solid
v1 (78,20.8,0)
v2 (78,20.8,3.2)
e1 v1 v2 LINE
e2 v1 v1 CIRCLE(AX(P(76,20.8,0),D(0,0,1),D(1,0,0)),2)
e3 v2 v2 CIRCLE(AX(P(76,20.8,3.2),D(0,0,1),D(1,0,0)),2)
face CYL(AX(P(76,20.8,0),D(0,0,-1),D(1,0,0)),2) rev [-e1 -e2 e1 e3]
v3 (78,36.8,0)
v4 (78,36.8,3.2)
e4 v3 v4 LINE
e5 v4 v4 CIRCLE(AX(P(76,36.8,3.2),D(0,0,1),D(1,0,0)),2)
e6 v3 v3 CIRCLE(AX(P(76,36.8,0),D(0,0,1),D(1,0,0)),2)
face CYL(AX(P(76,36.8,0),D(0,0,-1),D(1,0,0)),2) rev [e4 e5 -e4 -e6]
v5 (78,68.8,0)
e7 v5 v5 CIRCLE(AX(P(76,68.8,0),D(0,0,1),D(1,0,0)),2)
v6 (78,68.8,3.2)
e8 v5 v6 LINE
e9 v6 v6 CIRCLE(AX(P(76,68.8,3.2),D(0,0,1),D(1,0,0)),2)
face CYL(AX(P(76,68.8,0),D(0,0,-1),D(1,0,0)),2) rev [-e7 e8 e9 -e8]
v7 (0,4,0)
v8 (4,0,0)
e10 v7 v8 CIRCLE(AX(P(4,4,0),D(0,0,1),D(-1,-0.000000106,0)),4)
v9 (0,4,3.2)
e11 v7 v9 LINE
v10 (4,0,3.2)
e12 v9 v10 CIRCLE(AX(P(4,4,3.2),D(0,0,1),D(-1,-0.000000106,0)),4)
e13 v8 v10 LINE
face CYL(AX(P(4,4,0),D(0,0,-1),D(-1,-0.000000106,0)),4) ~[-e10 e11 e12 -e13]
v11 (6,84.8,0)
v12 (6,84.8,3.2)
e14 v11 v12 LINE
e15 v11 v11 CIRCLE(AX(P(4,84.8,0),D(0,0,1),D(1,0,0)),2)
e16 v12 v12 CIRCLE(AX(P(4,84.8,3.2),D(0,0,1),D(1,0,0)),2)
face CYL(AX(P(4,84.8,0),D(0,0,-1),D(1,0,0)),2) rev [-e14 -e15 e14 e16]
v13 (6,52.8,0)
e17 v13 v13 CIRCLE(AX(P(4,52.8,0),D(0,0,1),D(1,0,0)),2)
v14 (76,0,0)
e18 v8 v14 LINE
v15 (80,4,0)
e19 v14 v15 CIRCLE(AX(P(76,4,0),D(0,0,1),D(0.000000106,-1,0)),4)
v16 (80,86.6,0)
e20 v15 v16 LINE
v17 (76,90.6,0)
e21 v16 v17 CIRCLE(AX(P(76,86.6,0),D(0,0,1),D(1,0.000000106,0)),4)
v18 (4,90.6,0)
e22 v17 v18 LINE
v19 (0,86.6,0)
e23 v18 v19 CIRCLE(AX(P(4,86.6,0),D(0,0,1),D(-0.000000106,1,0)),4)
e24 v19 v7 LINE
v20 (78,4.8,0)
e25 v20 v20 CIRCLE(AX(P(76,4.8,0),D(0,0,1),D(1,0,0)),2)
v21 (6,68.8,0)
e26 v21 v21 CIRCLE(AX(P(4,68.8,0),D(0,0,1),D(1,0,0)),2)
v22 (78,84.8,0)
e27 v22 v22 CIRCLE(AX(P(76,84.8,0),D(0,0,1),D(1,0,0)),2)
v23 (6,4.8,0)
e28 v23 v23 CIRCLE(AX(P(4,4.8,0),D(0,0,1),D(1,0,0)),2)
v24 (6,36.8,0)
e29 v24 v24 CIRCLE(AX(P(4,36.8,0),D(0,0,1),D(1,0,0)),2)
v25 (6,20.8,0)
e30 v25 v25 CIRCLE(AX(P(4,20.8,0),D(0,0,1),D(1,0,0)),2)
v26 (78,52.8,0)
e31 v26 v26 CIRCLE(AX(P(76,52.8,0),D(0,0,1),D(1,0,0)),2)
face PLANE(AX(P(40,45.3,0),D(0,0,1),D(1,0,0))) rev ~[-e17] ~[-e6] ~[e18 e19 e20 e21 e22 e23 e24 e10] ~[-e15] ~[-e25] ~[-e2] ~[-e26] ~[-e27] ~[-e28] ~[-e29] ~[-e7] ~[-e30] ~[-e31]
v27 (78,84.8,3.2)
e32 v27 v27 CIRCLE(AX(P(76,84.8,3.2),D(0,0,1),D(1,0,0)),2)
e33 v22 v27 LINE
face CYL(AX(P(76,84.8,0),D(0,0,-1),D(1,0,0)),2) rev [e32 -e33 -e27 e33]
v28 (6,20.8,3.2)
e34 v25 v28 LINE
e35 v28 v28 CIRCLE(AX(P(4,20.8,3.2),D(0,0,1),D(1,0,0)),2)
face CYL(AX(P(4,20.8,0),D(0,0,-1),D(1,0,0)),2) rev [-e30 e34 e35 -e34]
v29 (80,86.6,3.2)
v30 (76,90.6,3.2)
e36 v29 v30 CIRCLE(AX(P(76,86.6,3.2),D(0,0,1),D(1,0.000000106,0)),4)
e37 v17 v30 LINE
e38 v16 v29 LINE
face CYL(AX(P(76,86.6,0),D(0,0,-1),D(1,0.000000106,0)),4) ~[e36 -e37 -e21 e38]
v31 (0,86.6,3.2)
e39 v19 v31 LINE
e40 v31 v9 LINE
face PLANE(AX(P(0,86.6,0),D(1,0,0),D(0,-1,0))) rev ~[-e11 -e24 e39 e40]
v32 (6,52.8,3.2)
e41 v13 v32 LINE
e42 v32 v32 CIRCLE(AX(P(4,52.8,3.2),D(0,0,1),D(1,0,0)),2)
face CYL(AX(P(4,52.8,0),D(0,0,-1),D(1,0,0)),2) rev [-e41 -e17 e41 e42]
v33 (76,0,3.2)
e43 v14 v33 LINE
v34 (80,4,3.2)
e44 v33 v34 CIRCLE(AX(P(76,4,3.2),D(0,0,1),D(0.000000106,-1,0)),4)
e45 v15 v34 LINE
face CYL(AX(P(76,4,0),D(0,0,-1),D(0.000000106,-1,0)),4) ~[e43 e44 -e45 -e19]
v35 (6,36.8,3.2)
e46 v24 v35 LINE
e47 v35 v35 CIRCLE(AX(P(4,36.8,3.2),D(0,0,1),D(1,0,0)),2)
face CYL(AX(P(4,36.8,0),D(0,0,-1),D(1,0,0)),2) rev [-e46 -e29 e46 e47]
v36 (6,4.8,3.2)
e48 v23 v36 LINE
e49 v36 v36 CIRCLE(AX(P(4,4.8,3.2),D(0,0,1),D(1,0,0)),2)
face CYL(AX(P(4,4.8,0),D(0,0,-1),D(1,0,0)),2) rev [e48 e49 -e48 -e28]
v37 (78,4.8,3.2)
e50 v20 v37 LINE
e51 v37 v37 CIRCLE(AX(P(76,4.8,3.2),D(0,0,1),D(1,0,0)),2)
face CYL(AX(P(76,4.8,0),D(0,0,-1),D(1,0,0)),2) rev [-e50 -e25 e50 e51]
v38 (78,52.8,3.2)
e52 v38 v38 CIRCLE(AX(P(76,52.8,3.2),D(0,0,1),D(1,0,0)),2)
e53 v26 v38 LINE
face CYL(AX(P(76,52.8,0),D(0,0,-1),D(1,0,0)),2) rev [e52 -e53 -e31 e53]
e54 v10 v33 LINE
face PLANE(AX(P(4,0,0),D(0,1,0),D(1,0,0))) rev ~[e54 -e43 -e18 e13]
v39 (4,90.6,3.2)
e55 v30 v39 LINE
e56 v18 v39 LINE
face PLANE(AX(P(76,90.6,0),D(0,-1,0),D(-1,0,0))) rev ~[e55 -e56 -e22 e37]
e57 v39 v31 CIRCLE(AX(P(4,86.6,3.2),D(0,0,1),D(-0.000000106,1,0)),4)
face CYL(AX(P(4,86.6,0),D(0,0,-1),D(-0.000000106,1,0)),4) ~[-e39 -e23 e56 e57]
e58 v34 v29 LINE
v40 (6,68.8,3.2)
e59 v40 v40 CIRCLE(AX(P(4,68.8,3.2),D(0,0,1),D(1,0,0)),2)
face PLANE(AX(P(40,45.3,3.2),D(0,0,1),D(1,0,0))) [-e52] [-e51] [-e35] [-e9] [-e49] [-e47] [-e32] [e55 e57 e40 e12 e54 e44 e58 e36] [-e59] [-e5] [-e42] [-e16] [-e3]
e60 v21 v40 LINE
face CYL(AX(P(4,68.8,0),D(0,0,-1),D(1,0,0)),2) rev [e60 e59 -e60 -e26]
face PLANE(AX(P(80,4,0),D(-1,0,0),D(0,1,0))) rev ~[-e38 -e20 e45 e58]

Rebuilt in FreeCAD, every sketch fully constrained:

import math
import FreeCAD as App
import Part
import Sketcher
from FreeCAD import Vector

doc = App.newDocument("Part")
body = doc.addObject("PartDesign::Body", "Body")

sketch1 = body.newObject("Sketcher::SketchObject", "Sketch")
sketch1.AttachmentSupport = (doc.getObject("XY_Plane"), [""])
sketch1.MapMode = "FlatFace"
sketch1.addGeometry([
    Part.ArcOfCircle(Part.Circle(Vector(4, 4, 0), Vector(0, 0, 1), 4), math.radians(-180), math.radians(-90)),
    Part.LineSegment(Vector(4, 0, 0), Vector(76, 0, 0)),
    Part.ArcOfCircle(Part.Circle(Vector(76, 4, 0), Vector(0, 0, 1), 4), math.radians(-90), math.radians(0)),
    Part.LineSegment(Vector(80, 4, 0), Vector(80, 86.6, 0)),
    Part.ArcOfCircle(Part.Circle(Vector(76, 86.6, 0), Vector(0, 0, 1), 4), math.radians(0), math.radians(90)),
    Part.LineSegment(Vector(76, 90.6, 0), Vector(4, 90.6, 0)),
    Part.ArcOfCircle(Part.Circle(Vector(4, 86.6, 0), Vector(0, 0, 1), 4), math.radians(90), math.radians(180)),
    Part.LineSegment(Vector(0, 86.6, 0), Vector(0, 4, 0)),
    Part.Circle(Vector(4, 4.8, 0), Vector(0, 0, 1), 2),
    Part.Circle(Vector(4, 20.8, 0), Vector(0, 0, 1), 2),
    Part.Circle(Vector(4, 36.8, 0), Vector(0, 0, 1), 2),
    Part.Circle(Vector(76, 4.8, 0), Vector(0, 0, 1), 2),
    Part.Circle(Vector(76, 20.8, 0), Vector(0, 0, 1), 2),
    Part.Circle(Vector(76, 36.8, 0), Vector(0, 0, 1), 2),
    Part.Circle(Vector(4, 52.8, 0), Vector(0, 0, 1), 2),
    Part.Circle(Vector(4, 68.8, 0), Vector(0, 0, 1), 2),
    Part.Circle(Vector(4, 84.8, 0), Vector(0, 0, 1), 2),
    Part.Circle(Vector(76, 52.8, 0), Vector(0, 0, 1), 2),
    Part.Circle(Vector(76, 68.8, 0), Vector(0, 0, 1), 2),
    Part.Circle(Vector(76, 84.8, 0), Vector(0, 0, 1), 2),
], False)
sketch1.addConstraint([
    Sketcher.Constraint("Tangent", 0, 2, 1, 1),
    Sketcher.Constraint("Tangent", 1, 2, 2, 1),
    Sketcher.Constraint("Tangent", 2, 2, 3, 1),
    Sketcher.Constraint("Tangent", 3, 2, 4, 1),
    Sketcher.Constraint("Tangent", 4, 2, 5, 1),
    Sketcher.Constraint("Tangent", 5, 2, 6, 1),
    Sketcher.Constraint("Tangent", 6, 2, 7, 1),
    Sketcher.Constraint("Tangent", 7, 2, 0, 1),
    Sketcher.Constraint("Horizontal", 1),
    Sketcher.Constraint("Vertical", 3),
    Sketcher.Constraint("Horizontal", 5),
    Sketcher.Constraint("Vertical", 7),
    Sketcher.Constraint("Equal", 0, 2),
    Sketcher.Constraint("Equal", 2, 4),
    Sketcher.Constraint("Equal", 4, 6),
    Sketcher.Constraint("Equal", 8, 9),
    Sketcher.Constraint("Equal", 9, 10),
    Sketcher.Constraint("Equal", 10, 11),
    Sketcher.Constraint("Equal", 11, 12),
    Sketcher.Constraint("Equal", 12, 13),
    Sketcher.Constraint("Equal", 13, 14),
    Sketcher.Constraint("Equal", 14, 15),
    Sketcher.Constraint("Equal", 15, 16),
    Sketcher.Constraint("Equal", 16, 17),
    Sketcher.Constraint("Equal", 17, 18),
    Sketcher.Constraint("Equal", 18, 19),
    Sketcher.Constraint("PointOnObject", 0, 2, -1),
    Sketcher.Constraint("PointOnObject", 6, 2, -2),
    Sketcher.Constraint("Horizontal", 8, 3, 11, 3),
    Sketcher.Constraint("Horizontal", 9, 3, 12, 3),
    Sketcher.Constraint("Horizontal", 10, 3, 13, 3),
    Sketcher.Constraint("Horizontal", 14, 3, 17, 3),
    Sketcher.Constraint("Horizontal", 15, 3, 18, 3),
    Sketcher.Constraint("Horizontal", 16, 3, 19, 3),
    Sketcher.Constraint("Vertical", 6, 3, 8, 3),
    Sketcher.Constraint("Vertical", 8, 3, 9, 3),
    Sketcher.Constraint("Vertical", 9, 3, 10, 3),
    Sketcher.Constraint("Vertical", 4, 3, 11, 3),
    Sketcher.Constraint("Vertical", 11, 3, 12, 3),
    Sketcher.Constraint("Vertical", 12, 3, 13, 3),
    Sketcher.Constraint("Vertical", 10, 3, 14, 3),
    Sketcher.Constraint("Vertical", 14, 3, 15, 3),
    Sketcher.Constraint("Vertical", 15, 3, 16, 3),
    Sketcher.Constraint("Vertical", 13, 3, 17, 3),
    Sketcher.Constraint("Vertical", 17, 3, 18, 3),
    Sketcher.Constraint("Vertical", 18, 3, 19, 3),
    Sketcher.Constraint("Diameter", 8, 4.0),
    Sketcher.Constraint("Radius", 0, 4.0),
    Sketcher.Constraint("DistanceX", 1, 1, 1, 2, 72.0),
    Sketcher.Constraint("DistanceY", 3, 1, 3, 2, 82.6),
    Sketcher.Constraint("DistanceY", 8, 3, 9, 3, 16.0),
    Sketcher.Constraint("DistanceY", 9, 3, 10, 3, 16.0),
    Sketcher.Constraint("DistanceY", 10, 3, 14, 3, 16.0),
    Sketcher.Constraint("DistanceY", 14, 3, 15, 3, 16.0),
    Sketcher.Constraint("DistanceY", 15, 3, 16, 3, 16.0),
    Sketcher.Constraint("DistanceY", -1, 1, 8, 3, 4.8),
])
pad1 = body.newObject("PartDesign::Pad", "Pad")
pad1.Profile = sketch1
pad1.Length = 3.2

doc.recompute()
